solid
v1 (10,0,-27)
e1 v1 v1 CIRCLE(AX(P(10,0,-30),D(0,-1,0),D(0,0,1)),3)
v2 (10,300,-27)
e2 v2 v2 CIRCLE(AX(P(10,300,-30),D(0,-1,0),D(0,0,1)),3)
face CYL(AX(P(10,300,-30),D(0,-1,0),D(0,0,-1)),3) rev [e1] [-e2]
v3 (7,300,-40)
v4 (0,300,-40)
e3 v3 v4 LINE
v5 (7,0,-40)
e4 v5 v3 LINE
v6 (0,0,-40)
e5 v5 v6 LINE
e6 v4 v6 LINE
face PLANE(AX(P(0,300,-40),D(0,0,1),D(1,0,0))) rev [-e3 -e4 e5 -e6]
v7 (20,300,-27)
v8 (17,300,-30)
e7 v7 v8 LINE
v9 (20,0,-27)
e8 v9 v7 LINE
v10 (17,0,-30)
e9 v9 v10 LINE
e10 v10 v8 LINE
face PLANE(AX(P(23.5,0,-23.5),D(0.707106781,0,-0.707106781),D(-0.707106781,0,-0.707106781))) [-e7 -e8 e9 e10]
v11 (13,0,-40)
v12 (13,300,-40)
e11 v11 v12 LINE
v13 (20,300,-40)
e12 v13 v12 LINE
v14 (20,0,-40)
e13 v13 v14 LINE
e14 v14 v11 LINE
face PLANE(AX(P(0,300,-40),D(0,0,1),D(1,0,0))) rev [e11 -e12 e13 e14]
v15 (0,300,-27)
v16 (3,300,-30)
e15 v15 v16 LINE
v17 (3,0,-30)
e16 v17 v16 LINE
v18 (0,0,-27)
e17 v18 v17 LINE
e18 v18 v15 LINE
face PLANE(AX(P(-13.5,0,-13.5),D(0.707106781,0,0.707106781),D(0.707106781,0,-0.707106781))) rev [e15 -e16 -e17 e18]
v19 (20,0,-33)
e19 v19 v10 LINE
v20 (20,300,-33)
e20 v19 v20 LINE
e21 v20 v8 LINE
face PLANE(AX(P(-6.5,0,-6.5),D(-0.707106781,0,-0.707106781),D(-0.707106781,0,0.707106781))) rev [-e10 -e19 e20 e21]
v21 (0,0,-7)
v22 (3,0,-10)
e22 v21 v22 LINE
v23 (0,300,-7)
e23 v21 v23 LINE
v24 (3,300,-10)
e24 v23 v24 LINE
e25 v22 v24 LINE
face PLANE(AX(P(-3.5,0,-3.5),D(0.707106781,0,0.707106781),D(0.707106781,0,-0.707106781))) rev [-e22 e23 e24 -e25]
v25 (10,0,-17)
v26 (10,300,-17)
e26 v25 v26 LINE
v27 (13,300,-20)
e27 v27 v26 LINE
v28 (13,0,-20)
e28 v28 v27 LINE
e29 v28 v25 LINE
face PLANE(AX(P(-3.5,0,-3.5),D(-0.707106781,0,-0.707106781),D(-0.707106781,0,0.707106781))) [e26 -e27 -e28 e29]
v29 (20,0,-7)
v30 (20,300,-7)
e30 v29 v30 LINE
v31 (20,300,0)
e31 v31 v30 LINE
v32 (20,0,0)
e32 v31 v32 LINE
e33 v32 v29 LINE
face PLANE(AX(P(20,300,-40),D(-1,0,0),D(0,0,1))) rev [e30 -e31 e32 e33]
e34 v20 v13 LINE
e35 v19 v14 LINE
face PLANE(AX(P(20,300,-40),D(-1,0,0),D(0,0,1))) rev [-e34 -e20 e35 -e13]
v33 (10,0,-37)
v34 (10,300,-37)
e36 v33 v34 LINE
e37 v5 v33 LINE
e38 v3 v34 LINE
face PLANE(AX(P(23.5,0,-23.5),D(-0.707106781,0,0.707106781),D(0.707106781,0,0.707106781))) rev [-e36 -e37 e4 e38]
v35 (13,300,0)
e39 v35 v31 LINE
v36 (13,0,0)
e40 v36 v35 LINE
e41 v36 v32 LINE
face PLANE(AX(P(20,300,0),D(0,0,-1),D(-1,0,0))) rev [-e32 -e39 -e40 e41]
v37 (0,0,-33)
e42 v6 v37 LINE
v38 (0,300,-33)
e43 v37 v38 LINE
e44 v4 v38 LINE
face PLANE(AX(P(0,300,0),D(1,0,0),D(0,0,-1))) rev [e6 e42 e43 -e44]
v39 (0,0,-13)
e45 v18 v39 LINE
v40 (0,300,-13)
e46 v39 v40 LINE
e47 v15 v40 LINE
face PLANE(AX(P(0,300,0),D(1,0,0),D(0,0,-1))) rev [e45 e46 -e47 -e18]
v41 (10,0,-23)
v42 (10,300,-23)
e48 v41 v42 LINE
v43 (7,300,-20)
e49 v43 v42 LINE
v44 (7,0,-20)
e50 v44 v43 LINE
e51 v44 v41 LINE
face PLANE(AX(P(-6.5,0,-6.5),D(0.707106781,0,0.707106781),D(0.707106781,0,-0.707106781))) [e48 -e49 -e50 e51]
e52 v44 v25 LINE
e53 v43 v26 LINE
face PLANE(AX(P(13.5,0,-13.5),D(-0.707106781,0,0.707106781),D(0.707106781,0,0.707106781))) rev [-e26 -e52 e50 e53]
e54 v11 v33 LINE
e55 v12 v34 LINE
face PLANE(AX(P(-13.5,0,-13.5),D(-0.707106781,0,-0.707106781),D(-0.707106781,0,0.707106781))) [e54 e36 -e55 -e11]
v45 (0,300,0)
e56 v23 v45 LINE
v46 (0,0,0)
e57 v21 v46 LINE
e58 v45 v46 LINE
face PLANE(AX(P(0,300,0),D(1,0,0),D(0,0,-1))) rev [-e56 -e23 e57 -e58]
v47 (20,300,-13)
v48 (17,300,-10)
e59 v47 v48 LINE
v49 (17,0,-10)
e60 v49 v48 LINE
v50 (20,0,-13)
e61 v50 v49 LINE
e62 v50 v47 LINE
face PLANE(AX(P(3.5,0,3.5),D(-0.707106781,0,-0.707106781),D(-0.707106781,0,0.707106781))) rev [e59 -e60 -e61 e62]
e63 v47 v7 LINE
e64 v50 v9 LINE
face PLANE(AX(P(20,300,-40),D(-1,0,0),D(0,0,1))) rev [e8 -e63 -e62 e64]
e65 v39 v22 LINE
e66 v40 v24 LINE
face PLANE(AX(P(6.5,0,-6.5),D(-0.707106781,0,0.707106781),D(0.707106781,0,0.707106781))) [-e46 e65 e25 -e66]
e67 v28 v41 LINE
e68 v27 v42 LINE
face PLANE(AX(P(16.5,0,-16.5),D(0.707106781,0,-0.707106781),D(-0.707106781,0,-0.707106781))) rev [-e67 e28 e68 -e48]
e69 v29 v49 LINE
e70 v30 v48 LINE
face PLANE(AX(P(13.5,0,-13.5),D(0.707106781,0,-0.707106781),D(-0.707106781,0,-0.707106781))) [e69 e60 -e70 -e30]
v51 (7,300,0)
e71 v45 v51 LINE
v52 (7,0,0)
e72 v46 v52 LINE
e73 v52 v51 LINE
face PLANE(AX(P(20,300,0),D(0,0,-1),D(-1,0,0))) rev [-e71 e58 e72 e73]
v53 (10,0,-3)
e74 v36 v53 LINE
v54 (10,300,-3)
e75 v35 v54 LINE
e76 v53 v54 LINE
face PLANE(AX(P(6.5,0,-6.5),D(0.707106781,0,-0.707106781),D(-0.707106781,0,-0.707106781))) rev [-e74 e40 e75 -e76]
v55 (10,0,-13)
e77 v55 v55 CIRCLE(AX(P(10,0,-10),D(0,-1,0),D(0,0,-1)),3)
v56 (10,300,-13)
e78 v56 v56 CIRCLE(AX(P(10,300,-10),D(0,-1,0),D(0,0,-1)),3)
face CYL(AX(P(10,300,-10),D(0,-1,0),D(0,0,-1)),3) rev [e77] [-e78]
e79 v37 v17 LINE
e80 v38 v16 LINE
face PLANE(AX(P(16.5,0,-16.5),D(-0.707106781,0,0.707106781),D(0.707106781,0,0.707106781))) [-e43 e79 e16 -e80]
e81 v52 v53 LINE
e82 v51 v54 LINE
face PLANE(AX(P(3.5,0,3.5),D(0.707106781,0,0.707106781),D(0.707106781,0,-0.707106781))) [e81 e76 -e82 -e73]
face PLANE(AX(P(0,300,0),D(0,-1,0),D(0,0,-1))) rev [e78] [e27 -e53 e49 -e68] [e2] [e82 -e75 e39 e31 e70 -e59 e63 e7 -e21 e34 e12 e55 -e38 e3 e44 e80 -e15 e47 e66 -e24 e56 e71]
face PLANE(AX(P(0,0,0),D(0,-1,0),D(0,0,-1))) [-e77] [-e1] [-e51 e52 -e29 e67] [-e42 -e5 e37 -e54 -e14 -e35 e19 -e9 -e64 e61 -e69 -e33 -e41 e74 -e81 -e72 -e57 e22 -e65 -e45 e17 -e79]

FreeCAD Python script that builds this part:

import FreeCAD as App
import Part
import Sketcher
from FreeCAD import Vector

doc = App.newDocument("Part")
body = doc.addObject("PartDesign::Body", "Body")

# Sketch on XZ plane
sketch1 = body.newObject("Sketcher::SketchObject", "Sketch")
sketch1.AttachmentSupport = (doc.getObject("XZ_Plane"), [""])
sketch1.MapMode = "FlatFace"
sketch1.addGeometry([
    Part.LineSegment(Vector(0, -40, 0), Vector(0, 0, 0)),
    Part.LineSegment(Vector(0, 0, 0), Vector(20, 0, 0)),
    Part.LineSegment(Vector(20, 0, 0), Vector(20, -40, 0)),
    Part.LineSegment(Vector(20, -40, 0), Vector(0, -40, 0)),
], False)
sketch1.addConstraint([
    Sketcher.Constraint("Coincident", 0, 2, 1, 1),
    Sketcher.Constraint("Coincident", 1, 2, 2, 1),
    Sketcher.Constraint("Coincident", 2, 2, 3, 1),
    Sketcher.Constraint("Coincident", 3, 2, 0, 1),
    Sketcher.Constraint("Vertical", 0),
    Sketcher.Constraint("Horizontal", 1),
    Sketcher.Constraint("Vertical", 2),
    Sketcher.Constraint("Horizontal", 3),
    Sketcher.Constraint("Coincident", 0, 2, -1, 1),
    Sketcher.Constraint("DistanceX", 1, 1, 1, 2, 20.0),
    Sketcher.Constraint("DistanceY", 0, 1, 0, 2, 40.0),
])
pad1 = body.newObject("PartDesign::Pad", "Pad")
pad1.Profile = sketch1
pad1.Length = 300
pad1.Reversed = True

# Sketch on XZ plane
sketch2 = body.newObject("Sketcher::SketchObject", "Sketch001")
sketch2.AttachmentSupport = (doc.getObject("XZ_Plane"), [""])
sketch2.MapMode = "FlatFace"
sketch2.AttachmentOffset = App.Placement(Vector(0, 0, -300), App.Rotation())
sketch2.addGeometry([
    Part.LineSegment(Vector(3, -30, 0), Vector(0, -33, 0)),  # 0
    Part.LineSegment(Vector(0, -33, 0), Vector(0, -27, 0)),  # 1
    Part.LineSegment(Vector(0, -27, 0), Vector(3, -30, 0)),  # 2
    Part.LineSegment(Vector(13, -40, 0), Vector(7, -40, 0)),  # 3
    Part.LineSegment(Vector(7, -40, 0), Vector(10, -37, 0)),  # 4
    Part.LineSegment(Vector(10, -37, 0), Vector(13, -40, 0)),  # 5
    Part.LineSegment(Vector(20, -27, 0), Vector(20, -33, 0)),  # 6
    Part.LineSegment(Vector(20, -33, 0), Vector(17, -30, 0)),  # 7
    Part.LineSegment(Vector(17, -30, 0), Vector(20, -27, 0)),  # 8
    Part.LineSegment(Vector(10, -17, 0), Vector(13, -20, 0)),  # 9
    Part.LineSegment(Vector(13, -20, 0), Vector(10, -23, 0)),  # 10
    Part.LineSegment(Vector(10, -23, 0), Vector(7, -20, 0)),  # 11
    Part.LineSegment(Vector(7, -20, 0), Vector(10, -17, 0)),  # 12
    Part.LineSegment(Vector(20, -7, 0), Vector(20, -13, 0)),  # 13
    Part.LineSegment(Vector(20, -13, 0), Vector(17, -10, 0)),  # 14
    Part.LineSegment(Vector(17, -10, 0), Vector(20, -7, 0)),  # 15
    Part.LineSegment(Vector(3, -10, 0), Vector(0, -13, 0)),  # 16
    Part.LineSegment(Vector(0, -13, 0), Vector(0, -7, 0)),  # 17
    Part.LineSegment(Vector(0, -7, 0), Vector(3, -10, 0)),  # 18
    Part.LineSegment(Vector(10, -3, 0), Vector(7, 0, 0)),  # 19
    Part.LineSegment(Vector(7, 0, 0), Vector(13, 0, 0)),  # 20
    Part.LineSegment(Vector(13, 0, 0), Vector(10, -3, 0)),  # 21
], False)
sketch2.addConstraint([
    Sketcher.Constraint("Coincident", 0, 2, 1, 1),
    Sketcher.Constraint("Coincident", 1, 2, 2, 1),
    Sketcher.Constraint("Coincident", 2, 2, 0, 1),
    Sketcher.Constraint("Coincident", 3, 2, 4, 1),
    Sketcher.Constraint("Coincident", 4, 2, 5, 1),
    Sketcher.Constraint("Coincident", 5, 2, 3, 1),
    Sketcher.Constraint("Coincident", 6, 2, 7, 1),
    Sketcher.Constraint("Coincident", 7, 2, 8, 1),
    Sketcher.Constraint("Coincident", 8, 2, 6, 1),
    Sketcher.Constraint("Coincident", 9, 2, 10, 1),
    Sketcher.Constraint("Coincident", 10, 2, 11, 1),
    Sketcher.Constraint("Coincident", 11, 2, 12, 1),
    Sketcher.Constraint("Coincident", 12, 2, 9, 1),
    Sketcher.Constraint("Coincident", 13, 2, 14, 1),
    Sketcher.Constraint("Coincident", 14, 2, 15, 1),
    Sketcher.Constraint("Coincident", 15, 2, 13, 1),
    Sketcher.Constraint("Coincident", 16, 2, 17, 1),
    Sketcher.Constraint("Coincident", 17, 2, 18, 1),
    Sketcher.Constraint("Coincident", 18, 2, 16, 1),
    Sketcher.Constraint("Coincident", 19, 2, 20, 1),
    Sketcher.Constraint("Coincident", 20, 2, 21, 1),
    Sketcher.Constraint("Coincident", 21, 2, 19, 1),
    Sketcher.Constraint("Vertical", 1),
    Sketcher.Constraint("Horizontal", 3),
    Sketcher.Constraint("Vertical", 6),
    Sketcher.Constraint("Vertical", 13),
    Sketcher.Constraint("Vertical", 17),
    Sketcher.Constraint("Horizontal", 20),
    Sketcher.Constraint("PointOnObject", 0, 2, -2),
    Sketcher.Constraint("PointOnObject", 16, 2, -2),
    Sketcher.Constraint("PointOnObject", 19, 2, -1),
    Sketcher.Constraint("Perpendicular", 0, 2),
    Sketcher.Constraint("Perpendicular", 2, 4),
    Sketcher.Constraint("Perpendicular", 4, 5),
    Sketcher.Constraint("Parallel", 5, 7),
    Sketcher.Constraint("Perpendicular", 7, 8),
    Sketcher.Constraint("Perpendicular", 8, 9),
    Sketcher.Constraint("Perpendicular", 9, 10),
    Sketcher.Constraint("Perpendicular", 10, 11),
    Sketcher.Constraint("Perpendicular", 11, 12),
    Sketcher.Constraint("Perpendicular", 12, 14),
    Sketcher.Constraint("Perpendicular", 14, 15),
    Sketcher.Constraint("Parallel", 15, 16),
    Sketcher.Constraint("Perpendicular", 16, 18),
    Sketcher.Constraint("Parallel", 18, 19),
    Sketcher.Constraint("Perpendicular", 19, 21),
    Sketcher.Constraint("Horizontal", 0, 2, 6, 2),
    Sketcher.Constraint("Horizontal", 2, 2, 7, 2),
    Sketcher.Constraint("Horizontal", 1, 2, 8, 2),
    Sketcher.Constraint("Horizontal", 9, 2, 11, 2),
    Sketcher.Constraint("Horizontal", 13, 2, 16, 2),
    Sketcher.Constraint("Horizontal", 15, 2, 17, 2),
    Sketcher.Constraint("Vertical", 5, 2, 9, 2),
    Sketcher.Constraint("Vertical", 4, 2, 10, 2),
    Sketcher.Constraint("Vertical", 8, 2, 13, 2),
    Sketcher.Constraint("Vertical", 7, 2, 14, 2),
    Sketcher.Constraint("Vertical", 11, 2, 19, 2),
    Sketcher.Constraint("Vertical", 9, 2, 20, 2),
    Sketcher.Constraint("Equal", 20, 1),
    Sketcher.Constraint("DistanceX", 3, 2, 3, 1, 6.0),
    Sketcher.Constraint("DistanceY", 0, 2, -1, 1, 33.0),
    Sketcher.Constraint("DistanceX", -1, 1, 3, 2, 7.0),
    Sketcher.Constraint("DistanceY", 3, 2, -1, 1, 40.0),
    Sketcher.Constraint("DistanceX", -1, 1, 6, 2, 20.0),
    Sketcher.Constraint("DistanceY", 9, 2, -1, 1, 20.0),
    Sketcher.Constraint("DistanceY", 13, 2, -1, 1, 13.0),
])
pocket1 = body.newObject("PartDesign::Pocket", "Pocket")
pocket1.Profile = sketch2
pocket1.Type = "ThroughAll"
pocket1.Reversed = True

# Sketch on XZ plane
sketch3 = body.newObject("Sketcher::SketchObject", "Sketch002")
sketch3.AttachmentSupport = (doc.getObject("XZ_Plane"), [""])
sketch3.MapMode = "FlatFace"
sketch3.addGeometry([
    Part.Circle(Vector(10, -10, 0), Vector(0, 0, 1), 3),
    Part.Circle(Vector(10, -30, 0), Vector(0, 0, 1), 3),
], False)
sketch3.addConstraint([
    Sketcher.Constraint("Equal", 0, 1),
    Sketcher.Constraint("Vertical", 0, 3, 1, 3),
    Sketcher.Constraint("Diameter", 0, 6.0),
    Sketcher.Constraint("DistanceX", -1, 1, 0, 3, 10.0),
    Sketcher.Constraint("DistanceY", 0, 3, -1, 1, 10.0),
    Sketcher.Constraint("DistanceY", 1, 3, -1, 1, 30.0),
])
pocket2 = body.newObject("PartDesign::Pocket", "Pocket001")
pocket2.Profile = sketch3
pocket2.Type = "ThroughAll"

doc.recompute()
